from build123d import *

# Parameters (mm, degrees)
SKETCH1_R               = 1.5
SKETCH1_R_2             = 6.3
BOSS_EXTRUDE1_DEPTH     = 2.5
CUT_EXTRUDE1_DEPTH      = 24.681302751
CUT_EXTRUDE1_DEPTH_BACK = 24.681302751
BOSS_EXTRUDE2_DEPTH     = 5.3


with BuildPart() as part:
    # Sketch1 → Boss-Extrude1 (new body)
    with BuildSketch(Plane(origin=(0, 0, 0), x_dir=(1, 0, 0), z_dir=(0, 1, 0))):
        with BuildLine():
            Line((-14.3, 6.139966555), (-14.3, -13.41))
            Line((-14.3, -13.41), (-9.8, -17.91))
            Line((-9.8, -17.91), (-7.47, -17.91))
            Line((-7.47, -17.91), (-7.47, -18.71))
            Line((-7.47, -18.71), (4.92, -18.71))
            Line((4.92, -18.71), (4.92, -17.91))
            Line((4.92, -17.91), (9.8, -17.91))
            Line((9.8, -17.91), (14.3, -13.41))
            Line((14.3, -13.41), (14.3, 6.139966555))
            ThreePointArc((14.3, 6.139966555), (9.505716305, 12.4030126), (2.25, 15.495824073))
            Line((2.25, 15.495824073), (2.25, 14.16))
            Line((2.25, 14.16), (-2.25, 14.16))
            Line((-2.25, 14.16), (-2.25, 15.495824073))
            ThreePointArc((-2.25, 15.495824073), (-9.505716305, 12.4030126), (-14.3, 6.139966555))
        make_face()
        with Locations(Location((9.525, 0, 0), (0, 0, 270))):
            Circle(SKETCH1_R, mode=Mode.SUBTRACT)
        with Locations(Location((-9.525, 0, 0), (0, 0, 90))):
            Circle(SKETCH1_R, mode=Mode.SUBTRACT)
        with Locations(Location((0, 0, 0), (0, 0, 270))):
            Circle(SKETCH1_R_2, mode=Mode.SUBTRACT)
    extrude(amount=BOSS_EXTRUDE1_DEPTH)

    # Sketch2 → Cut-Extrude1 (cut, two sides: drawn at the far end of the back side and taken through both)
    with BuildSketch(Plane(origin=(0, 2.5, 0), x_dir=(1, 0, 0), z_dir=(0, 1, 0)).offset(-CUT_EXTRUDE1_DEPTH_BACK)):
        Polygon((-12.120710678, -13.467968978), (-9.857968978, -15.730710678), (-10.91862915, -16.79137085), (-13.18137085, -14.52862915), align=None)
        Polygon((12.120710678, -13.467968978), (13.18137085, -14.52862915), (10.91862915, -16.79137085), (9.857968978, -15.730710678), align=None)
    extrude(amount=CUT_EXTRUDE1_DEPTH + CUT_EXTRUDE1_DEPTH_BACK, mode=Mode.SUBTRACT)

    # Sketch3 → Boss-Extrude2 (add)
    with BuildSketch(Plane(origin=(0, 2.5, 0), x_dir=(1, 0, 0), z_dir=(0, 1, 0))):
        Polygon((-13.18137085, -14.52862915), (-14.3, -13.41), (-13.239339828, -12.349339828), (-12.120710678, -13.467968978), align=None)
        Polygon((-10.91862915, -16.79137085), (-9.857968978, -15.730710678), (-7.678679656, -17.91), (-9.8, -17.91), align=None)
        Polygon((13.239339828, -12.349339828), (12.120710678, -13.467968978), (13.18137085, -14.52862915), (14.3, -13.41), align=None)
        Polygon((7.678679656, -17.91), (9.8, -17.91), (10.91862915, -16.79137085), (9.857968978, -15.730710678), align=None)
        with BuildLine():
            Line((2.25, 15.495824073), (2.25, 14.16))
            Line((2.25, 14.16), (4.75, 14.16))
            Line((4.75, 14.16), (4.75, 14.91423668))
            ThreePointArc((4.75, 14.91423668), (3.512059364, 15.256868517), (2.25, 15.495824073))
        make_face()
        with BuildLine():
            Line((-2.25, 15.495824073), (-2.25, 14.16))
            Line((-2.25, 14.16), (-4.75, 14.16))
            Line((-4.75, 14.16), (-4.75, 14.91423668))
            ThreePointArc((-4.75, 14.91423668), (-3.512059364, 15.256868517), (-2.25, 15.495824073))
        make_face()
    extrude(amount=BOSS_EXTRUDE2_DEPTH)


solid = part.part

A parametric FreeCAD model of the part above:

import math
import FreeCAD as App
import Part
import Sketcher

V = App.Vector
Q = App.Units.Quantity

doc = App.newDocument("Part")
params = doc.addObject("Spreadsheet::Sheet", "Params")
for row, (alias, value) in enumerate([
    ("sketch1_diameter", "3 mm"),
    ("sketch1_diameter2", "12.6 mm"),
    ("sketch1_radius", "15.5 mm"),
    ("sketch1_width", "4.5 mm"),
    ("sketch1_height", "0.8 mm"),
    ("pad1_length", "2.5 mm"),
    ("sketch2_length", "3.2 mm"),
    ("sketch2_length2", "1.5 mm"),
    ("sketch3_radius", "15.5 mm"),
    ("sketch3_width", "2.5 mm"),
    ("sketch3_length", "1.5 mm"),
    ("pad2_length", "5.3 mm"),
], start=1):
    params.set(f"A{row}", alias)
    params.set(f"B{row}", "=" + value)
    params.setAlias(f"B{row}", alias)

body = doc.addObject("PartDesign::Body", "Body")

# Sketch on XZ plane
sketch1 = body.newObject("Sketcher::SketchObject", "Sketch")
sketch1.AttachmentSupport = (doc.getObject("XZ_Plane"), [""])
sketch1.MapMode = "FlatFace"
sketch1.addGeometry(Part.LineSegment(V(-14.3, -6.139967, 0), V(-14.3, 13.41, 0)), False)
sketch1.addGeometry(Part.LineSegment(V(-14.3, 13.41, 0), V(-9.8, 17.91, 0)), False)
sketch1.addGeometry(Part.LineSegment(V(-9.8, 17.91, 0), V(-7.47, 17.91, 0)), False)
sketch1.addGeometry(Part.LineSegment(V(-7.47, 17.91, 0), V(-7.47, 18.71, 0)), False)
sketch1.addGeometry(Part.LineSegment(V(-7.47, 18.71, 0), V(4.92, 18.71, 0)), False)
sketch1.addGeometry(Part.LineSegment(V(4.92, 18.71, 0), V(4.92, 17.91, 0)), False)
sketch1.addGeometry(Part.LineSegment(V(4.92, 17.91, 0), V(9.8, 17.91, 0)), False)
sketch1.addGeometry(Part.LineSegment(V(9.8, 17.91, 0), V(14.3, 13.41, 0)), False)
sketch1.addGeometry(Part.LineSegment(V(14.3, 13.41, 0), V(14.3, -6.139967, 0)), False)
sketch1.addGeometry(Part.ArcOfCircle(Part.Circle(V(0, -0.16, 0), V(0, 0, 1), 15.5), math.radians(-81.653381), math.radians(-22.693681)), False)
sketch1.addGeometry(Part.LineSegment(V(2.25, -15.495824, 0), V(2.25, -14.16, 0)), False)
sketch1.addGeometry(Part.LineSegment(V(2.25, -14.16, 0), V(-2.25, -14.16, 0)), False)
sketch1.addGeometry(Part.LineSegment(V(-2.25, -14.16, 0), V(-2.25, -15.495824, 0)), False)
sketch1.addGeometry(Part.ArcOfCircle(Part.Circle(V(0, -0.16, 0), V(0, 0, 1), 15.5), math.radians(-157.306319), math.radians(-98.346619)), False)
sketch1.addGeometry(Part.Circle(V(-9.525, 0, 0), V(0, 0, 1), 1.5), False)
sketch1.addGeometry(Part.Circle(V(0, 0, 0), V(0, 0, 1), 6.3), False)
sketch1.addGeometry(Part.Circle(V(9.525, 0, 0), V(0, 0, 1), 1.5), False)
sketch1.addConstraint(Sketcher.Constraint("Coincident", 0, 2, 1, 1))
sketch1.addConstraint(Sketcher.Constraint("Coincident", 1, 2, 2, 1))
sketch1.addConstraint(Sketcher.Constraint("Coincident", 2, 2, 3, 1))
sketch1.addConstraint(Sketcher.Constraint("Coincident", 3, 2, 4, 1))
sketch1.addConstraint(Sketcher.Constraint("Coincident", 4, 2, 5, 1))
sketch1.addConstraint(Sketcher.Constraint("Coincident", 5, 2, 6, 1))
sketch1.addConstraint(Sketcher.Constraint("Coincident", 6, 2, 7, 1))
sketch1.addConstraint(Sketcher.Constraint("Coincident", 7, 2, 8, 1))
sketch1.addConstraint(Sketcher.Constraint("Coincident", 8, 2, 9, 2))
sketch1.addConstraint(Sketcher.Constraint("Coincident", 9, 1, 10, 1))
sketch1.addConstraint(Sketcher.Constraint("Coincident", 10, 2, 11, 1))
sketch1.addConstraint(Sketcher.Constraint("Coincident", 11, 2, 12, 1))
sketch1.addConstraint(Sketcher.Constraint("Coincident", 12, 2, 13, 2))
sketch1.addConstraint(Sketcher.Constraint("Coincident", 13, 1, 0, 1))
sketch1.addConstraint(Sketcher.Constraint("Vertical", 0))
sketch1.addConstraint(Sketcher.Constraint("Horizontal", 2))
sketch1.addConstraint(Sketcher.Constraint("Vertical", 3))
sketch1.addConstraint(Sketcher.Constraint("Horizontal", 4))
sketch1.addConstraint(Sketcher.Constraint("Vertical", 5))
sketch1.addConstraint(Sketcher.Constraint("Horizontal", 6))
sketch1.addConstraint(Sketcher.Constraint("Vertical", 8))
sketch1.addConstraint(Sketcher.Constraint("Vertical", 10))
sketch1.addConstraint(Sketcher.Constraint("Horizontal", 11))
sketch1.addConstraint(Sketcher.Constraint("Vertical", 12))
sketch1.addConstraint(Sketcher.Constraint("Coincident", 15, 3, -1, 1))
sketch1.addConstraint(Sketcher.Constraint("Coincident", 13, 3, 9, 3))
sketch1.addConstraint(Sketcher.Constraint("Equal", 9, 13))
sketch1.addConstraint(Sketcher.Constraint("Equal", 14, 16))
sketch1.addConstraint(Sketcher.Constraint("Symmetric", 14, 3, 16, 3, -1, 1))
sketch1.addConstraint(Sketcher.Constraint("Symmetric", 1, 2, 6, 2, -2))
sketch1.addConstraint(Sketcher.Constraint("Symmetric", 0, 2, 7, 2, -2))
sketch1.addConstraint(Sketcher.Constraint("Symmetric", 9, 1, 12, 2, -2))
sketch1.addConstraint(Sketcher.Constraint("PointOnObject", 14, 3, -1))
sketch1.addConstraint(Sketcher.Constraint("Perpendicular", 1, 7))
sketch1.addConstraint(Sketcher.Constraint("Diameter", 14, Q("3 mm")))
sketch1.addConstraint(Sketcher.Constraint("Diameter", 15, Q("12.6 mm")))
sketch1.addConstraint(Sketcher.Constraint("Radius", 9, Q("15.5 mm")))
sketch1.addConstraint(Sketcher.Constraint("DistanceX", 11, 2, 11, 1, Q("4.5 mm")))
sketch1.addConstraint(Sketcher.Constraint("DistanceY", 3, 1, 3, 2, Q("0.8 mm")))
sketch1.addConstraint(Sketcher.Constraint("DistanceY", 10, 2, 13, 3, Q("14 mm")))
sketch1.addConstraint(Sketcher.Constraint("DistanceX", 2, 1, 2, 2, Q("2.33 mm")))
sketch1.addConstraint(Sketcher.Constraint("DistanceX", 4, 1, 4, 2, Q("12.39 mm")))
sketch1.addConstraint(Sketcher.Constraint("DistanceX", 6, 1, 6, 2, Q("4.88 mm")))
sketch1.addConstraint(Sketcher.Constraint("DistanceX", 0, 2, -1, 1, Q("14.3 mm")))
sketch1.addConstraint(Sketcher.Constraint("DistanceY", 9, 3, -1, 1, Q("0.16 mm")))
sketch1.addConstraint(Sketcher.Constraint("DistanceY", -1, 1, 0, 2, Q("13.41 mm")))
sketch1.addConstraint(Sketcher.Constraint("DistanceX", 14, 3, 16, 3, Q("19.05 mm")))
sketch1.setExpression("Constraints[34]", "Params.sketch1_diameter")
sketch1.setExpression("Constraints[35]", "Params.sketch1_diameter2")
sketch1.setExpression("Constraints[36]", "Params.sketch1_radius")
sketch1.setExpression("Constraints[37]", "Params.sketch1_width")
sketch1.setExpression("Constraints[38]", "Params.sketch1_height")
pad1 = body.newObject("PartDesign::Pad", "Pad")
pad1.Profile = sketch1
pad1.setExpression("Length", "Params.pad1_length")
pad1.Reversed = True

# Sketch on XZ plane
sketch2 = body.newObject("Sketcher::SketchObject", "Sketch001")
sketch2.AttachmentSupport = (doc.getObject("XZ_Plane"), [""])
sketch2.MapMode = "FlatFace"
sketch2.AttachmentOffset = App.Placement(V(0, 0, -2.5), App.Rotation())
sketch2.addGeometry(Part.LineSegment(V(-9.857969, 15.730711, 0), V(-12.120711, 13.467969, 0)), False)
sketch2.addGeometry(Part.LineSegment(V(-12.120711, 13.467969, 0), V(-13.181371, 14.528629, 0)), False)
sketch2.addGeometry(Part.LineSegment(V(-13.181371, 14.528629, 0), V(-10.918629, 16.791371, 0)), False)
sketch2.addGeometry(Part.LineSegment(V(-10.918629, 16.791371, 0), V(-9.857969, 15.730711, 0)), False)
sketch2.addGeometry(Part.LineSegment(V(13.181371, 14.528629, 0), V(12.120711, 13.467969, 0)), False)
sketch2.addGeometry(Part.LineSegment(V(12.120711, 13.467969, 0), V(9.857969, 15.730711, 0)), False)
sketch2.addGeometry(Part.LineSegment(V(9.857969, 15.730711, 0), V(10.918629, 16.791371, 0)), False)
sketch2.addGeometry(Part.LineSegment(V(10.918629, 16.791371, 0), V(13.181371, 14.528629, 0)), False)
sketch2.addConstraint(Sketcher.Constraint("Coincident", 0, 2, 1, 1))
sketch2.addConstraint(Sketcher.Constraint("Coincident", 1, 2, 2, 1))
sketch2.addConstraint(Sketcher.Constraint("Coincident", 2, 2, 3, 1))
sketch2.addConstraint(Sketcher.Constraint("Coincident", 3, 2, 0, 1))
sketch2.addConstraint(Sketcher.Constraint("Coincident", 4, 2, 5, 1))
sketch2.addConstraint(Sketcher.Constraint("Coincident", 5, 2, 6, 1))
sketch2.addConstraint(Sketcher.Constraint("Coincident", 6, 2, 7, 1))
sketch2.addConstraint(Sketcher.Constraint("Coincident", 7, 2, 4, 1))
sketch2.addConstraint(Sketcher.Constraint("Symmetric", 0, 2, 4, 2, -2))
sketch2.addConstraint(Sketcher.Constraint("Symmetric", 3, 2, 5, 2, -2))
sketch2.addConstraint(Sketcher.Constraint("Symmetric", 2, 2, 6, 2, -2))
sketch2.addConstraint(Sketcher.Constraint("Symmetric", 1, 2, 7, 2, -2))
sketch2.addConstraint(Sketcher.Constraint("Perpendicular", 0, 1))
sketch2.addConstraint(Sketcher.Constraint("Perpendicular", 1, 2))
sketch2.addConstraint(Sketcher.Constraint("Perpendicular", 2, 3))
sketch2.addConstraint(Sketcher.Constraint("Perpendicular", 3, 4))
sketch2.addConstraint(Sketcher.Constraint("Distance", 0, Q("3.2 mm")))
sketch2.addConstraint(Sketcher.Constraint("Distance", 1, Q("1.5 mm")))
sketch2.addConstraint(Sketcher.Constraint("DistanceX", 2, 2, 7, 2, Q("24.1 mm")))
sketch2.addConstraint(Sketcher.Constraint("DistanceY", -1, 1, 0, 2, Q("13.467969 mm")))
sketch2.setExpression("Constraints[16]", "Params.sketch2_length")
sketch2.setExpression("Constraints[17]", "Params.sketch2_length2")
pocket1 = body.newObject("PartDesign::Pocket", "Pocket")
pocket1.Profile = sketch2
pocket1.Type = "ThroughAll"
pocket1.Midplane = True

# Sketch on XZ plane
sketch3 = body.newObject("Sketcher::SketchObject", "Sketch002")
sketch3.AttachmentSupport = (doc.getObject("XZ_Plane"), [""])
sketch3.MapMode = "FlatFace"
sketch3.AttachmentOffset = App.Placement(V(0, 0, -2.5), App.Rotation())
sketch3.addGeometry(Part.LineSegment(V(-14.3, 13.41, 0), V(-13.181371, 14.528629, 0)), False)
sketch3.addGeometry(Part.LineSegment(V(-13.181371, 14.528629, 0), V(-12.120711, 13.467969, 0)), False)
sketch3.addGeometry(Part.LineSegment(V(-12.120711, 13.467969, 0), V(-13.23934, 12.34934, 0)), False)
sketch3.addGeometry(Part.LineSegment(V(-13.23934, 12.34934, 0), V(-14.3, 13.41, 0)), False)
sketch3.addGeometry(Part.LineSegment(V(-9.857969, 15.730711, 0), V(-10.918629, 16.791371, 0)), False)
sketch3.addGeometry(Part.LineSegment(V(-10.918629, 16.791371, 0), V(-9.8, 17.91, 0)), False)
sketch3.addGeometry(Part.LineSegment(V(-9.8, 17.91, 0), V(-7.67868, 17.91, 0)), False)
sketch3.addGeometry(Part.LineSegment(V(-7.67868, 17.91, 0), V(-9.857969, 15.730711, 0)), False)
sketch3.addGeometry(Part.LineSegment(V(13.23934, 12.34934, 0), V(12.120711, 13.467969, 0)), False)
sketch3.addGeometry(Part.LineSegment(V(12.120711, 13.467969, 0), V(13.181371, 14.528629, 0)), False)
sketch3.addGeometry(Part.LineSegment(V(13.181371, 14.528629, 0), V(14.3, 13.41, 0)), False)
sketch3.addGeometry(Part.LineSegment(V(14.3, 13.41, 0), V(13.23934, 12.34934, 0)), False)
sketch3.addGeometry(Part.LineSegment(V(7.67868, 17.91, 0), V(9.8, 17.91, 0)), False)
sketch3.addGeometry(Part.LineSegment(V(9.8, 17.91, 0), V(10.918629, 16.791371, 0)), False)
sketch3.addGeometry(Part.LineSegment(V(10.918629, 16.791371, 0), V(9.857969, 15.730711, 0)), False)
sketch3.addGeometry(Part.LineSegment(V(9.857969, 15.730711, 0), V(7.67868, 17.91, 0)), False)
sketch3.addGeometry(Part.LineSegment(V(2.25, -15.495824, 0), V(2.25, -14.16, 0)), False)
sketch3.addGeometry(Part.LineSegment(V(2.25, -14.16, 0), V(4.75, -14.16, 0)), False)
sketch3.addGeometry(Part.LineSegment(V(4.75, -14.16, 0), V(4.75, -14.914237, 0)), False)
sketch3.addGeometry(Part.ArcOfCircle(Part.Circle(V(0, -0.16, 0), V(0, 0, 1), 15.5), math.radians(-81.653381), math.radians(-72.154482)), False)
sketch3.addGeometry(Part.LineSegment(V(-2.25, -14.16, 0), V(-2.25, -15.495824, 0)), False)
sketch3.addGeometry(Part.ArcOfCircle(Part.Circle(V(0, -0.16, 0), V(0, 0, 1), 15.5), math.radians(-107.845518), math.radians(-98.346619)), False)
sketch3.addGeometry(Part.LineSegment(V(-4.75, -14.914237, 0), V(-4.75, -14.16, 0)), False)
sketch3.addGeometry(Part.LineSegment(V(-4.75, -14.16, 0), V(-2.25, -14.16, 0)), False)
sketch3.addConstraint(Sketcher.Constraint("Coincident", 0, 2, 1, 1))
sketch3.addConstraint(Sketcher.Constraint("Coincident", 1, 2, 2, 1))
sketch3.addConstraint(Sketcher.Constraint("Coincident", 2, 2, 3, 1))
sketch3.addConstraint(Sketcher.Constraint("Coincident", 3, 2, 0, 1))
sketch3.addConstraint(Sketcher.Constraint("Coincident", 4, 2, 5, 1))
sketch3.addConstraint(Sketcher.Constraint("Coincident", 5, 2, 6, 1))
sketch3.addConstraint(Sketcher.Constraint("Coincident", 6, 2, 7, 1))
sketch3.addConstraint(Sketcher.Constraint("Coincident", 7, 2, 4, 1))
sketch3.addConstraint(Sketcher.Constraint("Coincident", 8, 2, 9, 1))
sketch3.addConstraint(Sketcher.Constraint("Coincident", 9, 2, 10, 1))
sketch3.addConstraint(Sketcher.Constraint("Coincident", 10, 2, 11, 1))
sketch3.addConstraint(Sketcher.Constraint("Coincident", 11, 2, 8, 1))
sketch3.addConstraint(Sketcher.Constraint("Coincident", 12, 2, 13, 1))
sketch3.addConstraint(Sketcher.Constraint("Coincident", 13, 2, 14, 1))
sketch3.addConstraint(Sketcher.Constraint("Coincident", 14, 2, 15, 1))
sketch3.addConstraint(Sketcher.Constraint("Coincident", 15, 2, 12, 1))
sketch3.addConstraint(Sketcher.Constraint("Coincident", 16, 2, 17, 1))
sketch3.addConstraint(Sketcher.Constraint("Coincident", 17, 2, 18, 1))
sketch3.addConstraint(Sketcher.Constraint("Coincident", 18, 2, 19, 2))
sketch3.addConstraint(Sketcher.Constraint("Coincident", 19, 1, 16, 1))
sketch3.addConstraint(Sketcher.Constraint("Coincident", 20, 2, 21, 2))
sketch3.addConstraint(Sketcher.Constraint("Coincident", 21, 1, 22, 1))
sketch3.addConstraint(Sketcher.Constraint("Coincident", 22, 2, 23, 1))
sketch3.addConstraint(Sketcher.Constraint("Coincident", 23, 2, 20, 1))
sketch3.addConstraint(Sketcher.Constraint("Horizontal", 6))
sketch3.addConstraint(Sketcher.Constraint("Horizontal", 12))
sketch3.addConstraint(Sketcher.Constraint("Vertical", 16))
sketch3.addConstraint(Sketcher.Constraint("Horizontal", 17))
sketch3.addConstraint(Sketcher.Constraint("Vertical", 18))
sketch3.addConstraint(Sketcher.Constraint("Vertical", 20))
sketch3.addConstraint(Sketcher.Constraint("Vertical", 22))
sketch3.addConstraint(Sketcher.Constraint("Horizontal", 23))
sketch3.addConstraint(Sketcher.Constraint("Coincident", 21, 3, 19, 3))
sketch3.addConstraint(Sketcher.Constraint("Equal", 19, 21))
sketch3.addConstraint(Sketcher.Constraint("Symmetric", 1, 2, 8, 2, -2))
sketch3.addConstraint(Sketcher.Constraint("Symmetric", 0, 2, 9, 2, -2))
sketch3.addConstraint(Sketcher.Constraint("Symmetric", 3, 2, 10, 2, -2))
sketch3.addConstraint(Sketcher.Constraint("Symmetric", 2, 2, 11, 2, -2))
sketch3.addConstraint(Sketcher.Constraint("Symmetric", 5, 2, 12, 2, -2))
sketch3.addConstraint(Sketcher.Constraint("Symmetric", 4, 2, 13, 2, -2))
sketch3.addConstraint(Sketcher.Constraint("Symmetric", 7, 2, 14, 2, -2))
sketch3.addConstraint(Sketcher.Constraint("Symmetric", 19, 1, 20, 2, -2))
sketch3.addConstraint(Sketcher.Constraint("Symmetric", 17, 2, 22, 2, -2))
sketch3.addConstraint(Sketcher.Constraint("Perpendicular", 0, 1))
sketch3.addConstraint(Sketcher.Constraint("Perpendicular", 1, 2))
sketch3.addConstraint(Sketcher.Constraint("Perpendicular", 2, 3))
sketch3.addConstraint(Sketcher.Constraint("Parallel", 3, 4))
sketch3.addConstraint(Sketcher.Constraint("Perpendicular", 4, 5))
sketch3.addConstraint(Sketcher.Constraint("Parallel", 5, 7))
sketch3.addConstraint(Sketcher.Constraint("Perpendicular", 7, 8))
sketch3.addConstraint(Sketcher.Constraint("Perpendicular", 14, 15))
sketch3.addConstraint(Sketcher.Constraint("Equal", 3, 4))
sketch3.addConstraint(Sketcher.Constraint("Equal", 2, 5))
sketch3.addConstraint(Sketcher.Constraint("Radius", 19, Q("15.5 mm")))
sketch3.addConstraint(Sketcher.Constraint("DistanceX", 17, 1, 17, 2, Q("2.5 mm")))
sketch3.addConstraint(Sketcher.Constraint("DistanceY", 16, 2, 21, 3, Q("14 mm")))
sketch3.addConstraint(Sketcher.Constraint("DistanceX", 20, 2, 18, 2, Q("7 mm")))
sketch3.addConstraint(Sketcher.Constraint("Distance", 1, Q("1.5 mm")))
sketch3.addConstraint(Sketcher.Constraint("DistanceX", 3, 2, -1, 1, Q("14.3 mm")))
sketch3.addConstraint(Sketcher.Constraint("DistanceX", 5, 2, -1, 1, Q("9.8 mm")))
sketch3.addConstraint(Sketcher.Constraint("DistanceY", 3, 2, 5, 2, Q("4.5 mm")))
sketch3.addConstraint(Sketcher.Constraint("DistanceY", 19, 3, -1, 1, Q("0.16 mm")))
sketch3.addConstraint(Sketcher.Constraint("DistanceY", -1, 1, 3, 2, Q("13.41 mm")))
sketch3.addConstraint(Sketcher.Constraint("DistanceY", 1, 2, 4, 2, Q("3.323402 mm")))
sketch3.setExpression("Constraints[53]", "Params.sketch3_radius")
sketch3.setExpression("Constraints[54]", "Params.sketch3_width")
sketch3.setExpression("Constraints[57]", "Params.sketch3_length")
pad2 = body.newObject("PartDesign::Pad", "Pad001")
pad2.Profile = sketch3
pad2.setExpression("Length", "Params.pad2_length")
pad2.Reversed = True

doc.recompute()
